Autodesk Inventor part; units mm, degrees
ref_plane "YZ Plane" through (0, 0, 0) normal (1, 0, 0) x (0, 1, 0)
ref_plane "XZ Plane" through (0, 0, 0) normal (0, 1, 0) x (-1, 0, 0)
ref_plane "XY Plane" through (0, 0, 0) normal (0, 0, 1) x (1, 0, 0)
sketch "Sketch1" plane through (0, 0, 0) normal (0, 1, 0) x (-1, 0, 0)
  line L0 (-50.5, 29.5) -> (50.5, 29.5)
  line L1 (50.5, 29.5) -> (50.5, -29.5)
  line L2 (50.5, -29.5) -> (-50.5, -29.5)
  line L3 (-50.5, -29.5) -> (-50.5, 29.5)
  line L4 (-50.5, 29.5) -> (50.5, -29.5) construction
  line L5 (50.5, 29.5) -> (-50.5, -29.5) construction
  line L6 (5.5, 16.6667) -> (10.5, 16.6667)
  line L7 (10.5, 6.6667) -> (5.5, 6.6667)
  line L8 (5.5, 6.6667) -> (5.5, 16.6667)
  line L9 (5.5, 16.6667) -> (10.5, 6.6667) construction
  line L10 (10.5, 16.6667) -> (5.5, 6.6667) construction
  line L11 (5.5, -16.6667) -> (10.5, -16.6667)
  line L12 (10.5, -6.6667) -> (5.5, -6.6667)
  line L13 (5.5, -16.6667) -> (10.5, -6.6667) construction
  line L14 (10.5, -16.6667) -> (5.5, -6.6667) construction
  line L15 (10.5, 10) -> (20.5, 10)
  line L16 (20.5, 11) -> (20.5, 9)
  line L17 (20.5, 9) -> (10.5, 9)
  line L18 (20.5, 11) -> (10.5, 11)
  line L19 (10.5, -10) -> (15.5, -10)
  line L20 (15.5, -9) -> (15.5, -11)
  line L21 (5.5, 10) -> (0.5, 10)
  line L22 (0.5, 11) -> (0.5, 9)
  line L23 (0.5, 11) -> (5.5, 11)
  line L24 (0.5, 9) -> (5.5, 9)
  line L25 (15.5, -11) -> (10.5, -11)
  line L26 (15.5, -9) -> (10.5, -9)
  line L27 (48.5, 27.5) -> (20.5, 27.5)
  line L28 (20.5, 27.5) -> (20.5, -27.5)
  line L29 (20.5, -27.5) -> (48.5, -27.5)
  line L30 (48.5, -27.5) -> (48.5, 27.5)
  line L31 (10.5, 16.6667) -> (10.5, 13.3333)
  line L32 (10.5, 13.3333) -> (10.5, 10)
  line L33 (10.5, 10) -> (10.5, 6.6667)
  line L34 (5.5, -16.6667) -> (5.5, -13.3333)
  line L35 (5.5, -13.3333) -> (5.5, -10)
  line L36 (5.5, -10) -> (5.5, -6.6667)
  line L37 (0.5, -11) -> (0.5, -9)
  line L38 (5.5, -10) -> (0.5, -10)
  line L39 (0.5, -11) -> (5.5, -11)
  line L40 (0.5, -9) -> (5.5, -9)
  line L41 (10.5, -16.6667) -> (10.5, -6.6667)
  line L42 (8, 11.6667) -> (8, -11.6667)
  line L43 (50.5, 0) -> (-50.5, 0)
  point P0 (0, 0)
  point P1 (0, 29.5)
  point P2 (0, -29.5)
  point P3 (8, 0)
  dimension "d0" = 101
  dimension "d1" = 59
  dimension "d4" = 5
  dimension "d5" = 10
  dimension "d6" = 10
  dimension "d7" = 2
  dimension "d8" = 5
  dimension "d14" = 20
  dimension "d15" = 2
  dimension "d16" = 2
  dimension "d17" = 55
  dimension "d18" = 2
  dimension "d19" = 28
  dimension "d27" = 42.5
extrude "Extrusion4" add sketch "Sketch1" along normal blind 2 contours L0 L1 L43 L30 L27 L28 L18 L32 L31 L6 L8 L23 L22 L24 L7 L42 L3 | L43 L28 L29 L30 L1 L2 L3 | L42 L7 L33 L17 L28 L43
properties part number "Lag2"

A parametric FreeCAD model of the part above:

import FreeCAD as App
import Part
import Sketcher

V = App.Vector
Q = App.Units.Quantity


def add_polygon(sketch, points):
    """Adds a closed chain of lines whose ends are joined by coincident constraints."""
    first, n = sketch.GeometryCount, len(points)
    for a, b in zip(points, points[1:] + points[:1]):
        sketch.addGeometry(Part.LineSegment(App.Vector(*a, 0), App.Vector(*b, 0)), False)
    for i in range(n):
        sketch.addConstraint(Sketcher.Constraint("Coincident", first + i, 2, first + (i + 1) % n, 1))

doc = App.newDocument("Part")
body = doc.addObject("PartDesign::Body", "Body")

# Sketch on XZ plane
sketch1 = body.newObject("Sketcher::SketchObject", "Sketch")
sketch1.AttachmentSupport = (doc.getObject("XZ_Plane"), [""])
sketch1.MapMode = "FlatFace"
add_polygon(sketch1, [(-50.5, 29.5), (50.5, 29.5), (50.5, -29.5), (-50.5, -29.5)])  # lines 0-3
add_polygon(sketch1, [(-48.5, 27.5), (-48.5, -27.5), (-20.5, -27.5), (-20.5, 9), (-10.5, 9), (-10.5, 6.7), (-5.5, 6.7), (-5.5, 9), (-0.5, 9), (-0.5, 11), (-5.5, 11), (-5.5, 16.7), (-10.5, 16.7), (-10.5, 11), (-20.5, 11), (-20.5, 27.5)])  # lines 4-19
add_polygon(sketch1, [(-8, -6.7), (-10.5, -6.7), (-10.5, -9), (-15.5, -9), (-15.5, -11), (-10.5, -11), (-10.5, -16.7), (-5.5, -16.7), (-5.5, -11), (-0.5, -11), (-0.5, -9), (-5.5, -9), (-5.5, -6.7)])  # lines 20-32
sketch1.addConstraint([
    Sketcher.Constraint("Horizontal", 0),
    Sketcher.Constraint("Vertical", 1),
    Sketcher.Constraint("Horizontal", 2),
    Sketcher.Constraint("Vertical", 3),
    Sketcher.Constraint("Vertical", 4),
    Sketcher.Constraint("Horizontal", 5),
    Sketcher.Constraint("Vertical", 6),
    Sketcher.Constraint("Horizontal", 7),
    Sketcher.Constraint("Vertical", 8),
    Sketcher.Constraint("Horizontal", 9),
    Sketcher.Constraint("Vertical", 10),
    Sketcher.Constraint("Horizontal", 11),
    Sketcher.Constraint("Vertical", 12),
    Sketcher.Constraint("Horizontal", 13),
    Sketcher.Constraint("Vertical", 14),
    Sketcher.Constraint("Horizontal", 15),
    Sketcher.Constraint("Vertical", 16),
    Sketcher.Constraint("Horizontal", 17),
    Sketcher.Constraint("Vertical", 18),
    Sketcher.Constraint("Horizontal", 19),
    Sketcher.Constraint("Horizontal", 20),
    Sketcher.Constraint("Vertical", 21),
    Sketcher.Constraint("Horizontal", 22),
    Sketcher.Constraint("Vertical", 23),
    Sketcher.Constraint("Horizontal", 24),
    Sketcher.Constraint("Vertical", 25),
    Sketcher.Constraint("Horizontal", 26),
    Sketcher.Constraint("Vertical", 27),
    Sketcher.Constraint("Horizontal", 28),
    Sketcher.Constraint("Vertical", 29),
    Sketcher.Constraint("Horizontal", 30),
    Sketcher.Constraint("Vertical", 31),
    Sketcher.Constraint("Horizontal", 32),
    Sketcher.Constraint("Symmetric", 0, 2, 2, 2, -1, 1),
    Sketcher.Constraint("Symmetric", 5, 2, 18, 2, -1),
    Sketcher.Constraint("Symmetric", 8, 2, 20, 2, -1),
    Sketcher.Constraint("Symmetric", 16, 2, 24, 2, -1),
    Sketcher.Constraint("Symmetric", 14, 2, 26, 2, -1),
    Sketcher.Constraint("Symmetric", 12, 2, 28, 2, -1),
    Sketcher.Constraint("Symmetric", 10, 2, 30, 2, -1),
    Sketcher.Constraint("Horizontal", 7, 2, 10, 2),
    Sketcher.Constraint("Horizontal", 13, 2, 16, 2),
    Sketcher.Constraint("Horizontal", 22, 2, 29, 2),
    Sketcher.Constraint("Vertical", 10, 2, 13, 2),
    Sketcher.Constraint("Vertical", 8, 2, 15, 2),
    Sketcher.Constraint("Equal", 9, 11),
    Sketcher.Constraint("Equal", 15, 22),
    Sketcher.Constraint("Equal", 20, 32),
    Sketcher.Constraint("DistanceX", 0, 1, 0, 2, Q("101 mm")),
    Sketcher.Constraint("DistanceX", 5, 1, 5, 2, Q("28 mm")),
    Sketcher.Constraint("DistanceX", 7, 1, 7, 2, Q("10 mm")),
    Sketcher.Constraint("DistanceX", 9, 1, 9, 2, Q("5 mm")),
    Sketcher.Constraint("DistanceY", 1, 2, 1, 1, Q("59 mm")),
    Sketcher.Constraint("DistanceY", 4, 2, 4, 1, Q("55 mm")),
    Sketcher.Constraint("DistanceY", 12, 1, 12, 2, Q("2 mm")),
    Sketcher.Constraint("DistanceX", 2, 2, 4, 2, Q("2 mm")),
    Sketcher.Constraint("DistanceY", 8, 2, 15, 2, Q("10 mm")),
    Sketcher.Constraint("DistanceY", 6, 1, 6, 2, Q("36.5 mm")),
    Sketcher.Constraint("DistanceY", 8, 2, 8, 1, Q("2.3333 mm")),
])
pad1 = body.newObject("PartDesign::Pad", "Pad")
pad1.Profile = sketch1
pad1.Length = 2
pad1.Reversed = True

doc.recompute()
